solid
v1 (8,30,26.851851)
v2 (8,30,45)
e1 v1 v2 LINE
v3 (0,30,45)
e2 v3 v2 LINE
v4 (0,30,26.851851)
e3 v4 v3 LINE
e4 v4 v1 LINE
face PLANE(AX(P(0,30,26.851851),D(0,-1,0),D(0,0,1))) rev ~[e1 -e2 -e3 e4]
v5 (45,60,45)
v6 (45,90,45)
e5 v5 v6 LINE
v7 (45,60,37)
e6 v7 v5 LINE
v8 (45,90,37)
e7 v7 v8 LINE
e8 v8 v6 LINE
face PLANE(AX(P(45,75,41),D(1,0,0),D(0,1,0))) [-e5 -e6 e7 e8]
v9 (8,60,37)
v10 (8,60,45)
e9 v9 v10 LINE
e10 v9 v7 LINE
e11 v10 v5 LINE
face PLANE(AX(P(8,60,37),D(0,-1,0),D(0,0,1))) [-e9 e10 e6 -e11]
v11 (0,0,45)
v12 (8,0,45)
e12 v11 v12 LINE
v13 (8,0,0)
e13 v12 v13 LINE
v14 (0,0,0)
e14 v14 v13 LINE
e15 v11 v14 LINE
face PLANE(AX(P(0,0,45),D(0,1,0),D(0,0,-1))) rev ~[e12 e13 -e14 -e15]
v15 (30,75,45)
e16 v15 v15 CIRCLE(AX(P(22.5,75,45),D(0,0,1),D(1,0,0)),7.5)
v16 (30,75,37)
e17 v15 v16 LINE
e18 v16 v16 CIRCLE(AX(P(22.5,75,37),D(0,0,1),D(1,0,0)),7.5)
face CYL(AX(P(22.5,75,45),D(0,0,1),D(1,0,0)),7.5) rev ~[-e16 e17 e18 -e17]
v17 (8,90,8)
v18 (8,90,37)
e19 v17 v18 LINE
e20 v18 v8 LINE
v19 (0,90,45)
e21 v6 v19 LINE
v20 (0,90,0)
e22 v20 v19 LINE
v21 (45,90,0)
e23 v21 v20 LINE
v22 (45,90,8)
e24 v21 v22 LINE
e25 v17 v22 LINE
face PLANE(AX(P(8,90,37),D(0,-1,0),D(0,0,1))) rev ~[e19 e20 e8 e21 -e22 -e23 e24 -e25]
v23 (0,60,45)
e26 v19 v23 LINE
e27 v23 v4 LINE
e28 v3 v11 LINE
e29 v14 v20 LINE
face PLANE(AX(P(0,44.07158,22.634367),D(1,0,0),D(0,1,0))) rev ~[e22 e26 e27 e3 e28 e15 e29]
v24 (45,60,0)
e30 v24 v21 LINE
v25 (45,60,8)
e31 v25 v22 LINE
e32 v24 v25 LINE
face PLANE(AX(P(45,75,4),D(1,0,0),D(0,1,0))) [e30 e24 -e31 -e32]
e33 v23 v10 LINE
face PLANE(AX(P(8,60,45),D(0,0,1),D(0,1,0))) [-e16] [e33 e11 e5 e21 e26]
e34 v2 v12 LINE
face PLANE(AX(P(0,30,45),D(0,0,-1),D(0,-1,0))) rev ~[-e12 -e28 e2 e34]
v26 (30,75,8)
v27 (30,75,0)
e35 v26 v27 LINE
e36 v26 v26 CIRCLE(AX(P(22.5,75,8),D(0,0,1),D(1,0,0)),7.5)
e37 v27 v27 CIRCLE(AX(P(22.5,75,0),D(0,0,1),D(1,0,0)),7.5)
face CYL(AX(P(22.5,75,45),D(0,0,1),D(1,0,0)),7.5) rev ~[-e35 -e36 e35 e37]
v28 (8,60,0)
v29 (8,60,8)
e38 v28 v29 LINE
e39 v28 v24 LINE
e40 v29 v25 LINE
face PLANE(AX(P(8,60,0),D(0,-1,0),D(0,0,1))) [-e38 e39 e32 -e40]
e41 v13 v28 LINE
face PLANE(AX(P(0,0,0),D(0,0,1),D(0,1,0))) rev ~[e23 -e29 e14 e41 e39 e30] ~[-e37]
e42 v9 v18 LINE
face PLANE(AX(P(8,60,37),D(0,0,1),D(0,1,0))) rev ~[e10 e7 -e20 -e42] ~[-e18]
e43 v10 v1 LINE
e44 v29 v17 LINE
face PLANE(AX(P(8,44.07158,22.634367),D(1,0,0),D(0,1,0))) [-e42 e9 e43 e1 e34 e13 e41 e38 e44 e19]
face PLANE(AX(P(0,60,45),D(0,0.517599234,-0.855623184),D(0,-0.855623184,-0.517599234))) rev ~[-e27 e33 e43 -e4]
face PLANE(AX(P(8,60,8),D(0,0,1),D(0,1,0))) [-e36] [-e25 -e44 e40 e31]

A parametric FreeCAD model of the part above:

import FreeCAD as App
import Part
import Sketcher

V = App.Vector

doc = App.newDocument("Part")
body = doc.addObject("PartDesign::Body", "Body")

sketch1 = body.newObject("Sketcher::SketchObject", "Sketch")
sketch1.AttachmentSupport = (doc.getObject("YZ_Plane"), [""])
sketch1.MapMode = "FlatFace"
sketch1.addGeometry([
    Part.LineSegment(V(0, 45, 0), V(0, 0, 0)),
    Part.LineSegment(V(0, 0, 0), V(90, 0, 0)),
    Part.LineSegment(V(90, 0, 0), V(90, 45, 0)),
    Part.LineSegment(V(90, 45, 0), V(60, 45, 0)),
    Part.LineSegment(V(60, 45, 0), V(30, 27, 0)),
    Part.LineSegment(V(30, 27, 0), V(30, 45, 0)),
    Part.LineSegment(V(30, 45, 0), V(0, 45, 0)),
], False)
sketch1.addConstraint([
    Sketcher.Constraint("Coincident", 0, 2, 1, 1),
    Sketcher.Constraint("Coincident", 1, 2, 2, 1),
    Sketcher.Constraint("Coincident", 2, 2, 3, 1),
    Sketcher.Constraint("Coincident", 3, 2, 4, 1),
    Sketcher.Constraint("Coincident", 4, 2, 5, 1),
    Sketcher.Constraint("Coincident", 5, 2, 6, 1),
    Sketcher.Constraint("Coincident", 6, 2, 0, 1),
    Sketcher.Constraint("Vertical", 0),
    Sketcher.Constraint("Horizontal", 1),
    Sketcher.Constraint("Vertical", 2),
    Sketcher.Constraint("Horizontal", 3),
    Sketcher.Constraint("Vertical", 5),
    Sketcher.Constraint("Horizontal", 6),
    Sketcher.Constraint("Coincident", 0, 2, -1, 1),
    Sketcher.Constraint("Horizontal", 3, 2, 5, 2),
    Sketcher.Constraint("Equal", 3, 6),
    Sketcher.Constraint("DistanceX", 1, 1, 1, 2, 90.0),
    Sketcher.Constraint("DistanceX", 3, 2, 3, 1, 30.0),
    Sketcher.Constraint("DistanceY", 0, 2, 0, 1, 45.0),
    Sketcher.Constraint("DistanceY", 5, 1, 5, 2, 18.148149),
])
pad1 = body.newObject("PartDesign::Pad", "Pad")
pad1.Profile = sketch1
pad1.Length = 8

sketch2 = body.newObject("Sketcher::SketchObject", "Sketch001")
sketch2.AttachmentSupport = (doc.getObject("YZ_Plane"), [""])
sketch2.MapMode = "FlatFace"
sketch2.AttachmentOffset = App.Placement(V(0, 0, 8), App.Rotation())
sketch2.addGeometry([
    Part.LineSegment(V(60, 45, 0), V(60, 37, 0)),
    Part.LineSegment(V(60, 37, 0), V(90, 37, 0)),
    Part.LineSegment(V(90, 37, 0), V(90, 45, 0)),
    Part.LineSegment(V(90, 45, 0), V(60, 45, 0)),
    Part.LineSegment(V(60, 8, 0), V(60, 0, 0)),
    Part.LineSegment(V(60, 0, 0), V(90, 0, 0)),
    Part.LineSegment(V(90, 0, 0), V(90, 8, 0)),
    Part.LineSegment(V(90, 8, 0), V(60, 8, 0)),
], False)
sketch2.addConstraint([
    Sketcher.Constraint("Coincident", 0, 2, 1, 1),
    Sketcher.Constraint("Coincident", 1, 2, 2, 1),
    Sketcher.Constraint("Coincident", 2, 2, 3, 1),
    Sketcher.Constraint("Coincident", 3, 2, 0, 1),
    Sketcher.Constraint("Coincident", 4, 2, 5, 1),
    Sketcher.Constraint("Coincident", 5, 2, 6, 1),
    Sketcher.Constraint("Coincident", 6, 2, 7, 1),
    Sketcher.Constraint("Coincident", 7, 2, 4, 1),
    Sketcher.Constraint("Vertical", 0),
    Sketcher.Constraint("Horizontal", 1),
    Sketcher.Constraint("Vertical", 2),
    Sketcher.Constraint("Horizontal", 3),
    Sketcher.Constraint("Vertical", 4),
    Sketcher.Constraint("Horizontal", 5),
    Sketcher.Constraint("Vertical", 6),
    Sketcher.Constraint("Horizontal", 7),
    Sketcher.Constraint("PointOnObject", 4, 2, -1),
    Sketcher.Constraint("Vertical", 3, 2, 4, 2),
    Sketcher.Constraint("Vertical", 2, 2, 5, 2),
    Sketcher.Constraint("Equal", 2, 4),
    Sketcher.Constraint("DistanceX", 1, 1, 1, 2, 30.0),
    Sketcher.Constraint("DistanceY", 0, 2, 0, 1, 8.0),
    Sketcher.Constraint("DistanceX", -1, 1, 0, 2, 60.0),
    Sketcher.Constraint("DistanceY", -1, 1, 0, 2, 37.0),
])
pad2 = body.newObject("PartDesign::Pad", "Pad001")
pad2.Profile = sketch2
pad2.Length = 37

sketch3 = body.newObject("Sketcher::SketchObject", "Sketch002")
sketch3.AttachmentSupport = (doc.getObject("XY_Plane"), [""])
sketch3.MapMode = "FlatFace"
sketch3.AttachmentOffset = App.Placement(V(0, 0, 45), App.Rotation())
sketch3.addGeometry(Part.Circle(V(22, 75, 0), V(0, 0, 1), 8), False)
sketch3.addConstraint([
    Sketcher.Constraint("Diameter", 0, 15.0),
    Sketcher.Constraint("DistanceY", -1, 1, 0, 3, 75.0),
    Sketcher.Constraint("DistanceX", -1, 1, 0, 3, 22.5),
])
pocket1 = body.newObject("PartDesign::Pocket", "Pocket")
pocket1.Profile = sketch3
pocket1.Type = "ThroughAll"

doc.recompute()
